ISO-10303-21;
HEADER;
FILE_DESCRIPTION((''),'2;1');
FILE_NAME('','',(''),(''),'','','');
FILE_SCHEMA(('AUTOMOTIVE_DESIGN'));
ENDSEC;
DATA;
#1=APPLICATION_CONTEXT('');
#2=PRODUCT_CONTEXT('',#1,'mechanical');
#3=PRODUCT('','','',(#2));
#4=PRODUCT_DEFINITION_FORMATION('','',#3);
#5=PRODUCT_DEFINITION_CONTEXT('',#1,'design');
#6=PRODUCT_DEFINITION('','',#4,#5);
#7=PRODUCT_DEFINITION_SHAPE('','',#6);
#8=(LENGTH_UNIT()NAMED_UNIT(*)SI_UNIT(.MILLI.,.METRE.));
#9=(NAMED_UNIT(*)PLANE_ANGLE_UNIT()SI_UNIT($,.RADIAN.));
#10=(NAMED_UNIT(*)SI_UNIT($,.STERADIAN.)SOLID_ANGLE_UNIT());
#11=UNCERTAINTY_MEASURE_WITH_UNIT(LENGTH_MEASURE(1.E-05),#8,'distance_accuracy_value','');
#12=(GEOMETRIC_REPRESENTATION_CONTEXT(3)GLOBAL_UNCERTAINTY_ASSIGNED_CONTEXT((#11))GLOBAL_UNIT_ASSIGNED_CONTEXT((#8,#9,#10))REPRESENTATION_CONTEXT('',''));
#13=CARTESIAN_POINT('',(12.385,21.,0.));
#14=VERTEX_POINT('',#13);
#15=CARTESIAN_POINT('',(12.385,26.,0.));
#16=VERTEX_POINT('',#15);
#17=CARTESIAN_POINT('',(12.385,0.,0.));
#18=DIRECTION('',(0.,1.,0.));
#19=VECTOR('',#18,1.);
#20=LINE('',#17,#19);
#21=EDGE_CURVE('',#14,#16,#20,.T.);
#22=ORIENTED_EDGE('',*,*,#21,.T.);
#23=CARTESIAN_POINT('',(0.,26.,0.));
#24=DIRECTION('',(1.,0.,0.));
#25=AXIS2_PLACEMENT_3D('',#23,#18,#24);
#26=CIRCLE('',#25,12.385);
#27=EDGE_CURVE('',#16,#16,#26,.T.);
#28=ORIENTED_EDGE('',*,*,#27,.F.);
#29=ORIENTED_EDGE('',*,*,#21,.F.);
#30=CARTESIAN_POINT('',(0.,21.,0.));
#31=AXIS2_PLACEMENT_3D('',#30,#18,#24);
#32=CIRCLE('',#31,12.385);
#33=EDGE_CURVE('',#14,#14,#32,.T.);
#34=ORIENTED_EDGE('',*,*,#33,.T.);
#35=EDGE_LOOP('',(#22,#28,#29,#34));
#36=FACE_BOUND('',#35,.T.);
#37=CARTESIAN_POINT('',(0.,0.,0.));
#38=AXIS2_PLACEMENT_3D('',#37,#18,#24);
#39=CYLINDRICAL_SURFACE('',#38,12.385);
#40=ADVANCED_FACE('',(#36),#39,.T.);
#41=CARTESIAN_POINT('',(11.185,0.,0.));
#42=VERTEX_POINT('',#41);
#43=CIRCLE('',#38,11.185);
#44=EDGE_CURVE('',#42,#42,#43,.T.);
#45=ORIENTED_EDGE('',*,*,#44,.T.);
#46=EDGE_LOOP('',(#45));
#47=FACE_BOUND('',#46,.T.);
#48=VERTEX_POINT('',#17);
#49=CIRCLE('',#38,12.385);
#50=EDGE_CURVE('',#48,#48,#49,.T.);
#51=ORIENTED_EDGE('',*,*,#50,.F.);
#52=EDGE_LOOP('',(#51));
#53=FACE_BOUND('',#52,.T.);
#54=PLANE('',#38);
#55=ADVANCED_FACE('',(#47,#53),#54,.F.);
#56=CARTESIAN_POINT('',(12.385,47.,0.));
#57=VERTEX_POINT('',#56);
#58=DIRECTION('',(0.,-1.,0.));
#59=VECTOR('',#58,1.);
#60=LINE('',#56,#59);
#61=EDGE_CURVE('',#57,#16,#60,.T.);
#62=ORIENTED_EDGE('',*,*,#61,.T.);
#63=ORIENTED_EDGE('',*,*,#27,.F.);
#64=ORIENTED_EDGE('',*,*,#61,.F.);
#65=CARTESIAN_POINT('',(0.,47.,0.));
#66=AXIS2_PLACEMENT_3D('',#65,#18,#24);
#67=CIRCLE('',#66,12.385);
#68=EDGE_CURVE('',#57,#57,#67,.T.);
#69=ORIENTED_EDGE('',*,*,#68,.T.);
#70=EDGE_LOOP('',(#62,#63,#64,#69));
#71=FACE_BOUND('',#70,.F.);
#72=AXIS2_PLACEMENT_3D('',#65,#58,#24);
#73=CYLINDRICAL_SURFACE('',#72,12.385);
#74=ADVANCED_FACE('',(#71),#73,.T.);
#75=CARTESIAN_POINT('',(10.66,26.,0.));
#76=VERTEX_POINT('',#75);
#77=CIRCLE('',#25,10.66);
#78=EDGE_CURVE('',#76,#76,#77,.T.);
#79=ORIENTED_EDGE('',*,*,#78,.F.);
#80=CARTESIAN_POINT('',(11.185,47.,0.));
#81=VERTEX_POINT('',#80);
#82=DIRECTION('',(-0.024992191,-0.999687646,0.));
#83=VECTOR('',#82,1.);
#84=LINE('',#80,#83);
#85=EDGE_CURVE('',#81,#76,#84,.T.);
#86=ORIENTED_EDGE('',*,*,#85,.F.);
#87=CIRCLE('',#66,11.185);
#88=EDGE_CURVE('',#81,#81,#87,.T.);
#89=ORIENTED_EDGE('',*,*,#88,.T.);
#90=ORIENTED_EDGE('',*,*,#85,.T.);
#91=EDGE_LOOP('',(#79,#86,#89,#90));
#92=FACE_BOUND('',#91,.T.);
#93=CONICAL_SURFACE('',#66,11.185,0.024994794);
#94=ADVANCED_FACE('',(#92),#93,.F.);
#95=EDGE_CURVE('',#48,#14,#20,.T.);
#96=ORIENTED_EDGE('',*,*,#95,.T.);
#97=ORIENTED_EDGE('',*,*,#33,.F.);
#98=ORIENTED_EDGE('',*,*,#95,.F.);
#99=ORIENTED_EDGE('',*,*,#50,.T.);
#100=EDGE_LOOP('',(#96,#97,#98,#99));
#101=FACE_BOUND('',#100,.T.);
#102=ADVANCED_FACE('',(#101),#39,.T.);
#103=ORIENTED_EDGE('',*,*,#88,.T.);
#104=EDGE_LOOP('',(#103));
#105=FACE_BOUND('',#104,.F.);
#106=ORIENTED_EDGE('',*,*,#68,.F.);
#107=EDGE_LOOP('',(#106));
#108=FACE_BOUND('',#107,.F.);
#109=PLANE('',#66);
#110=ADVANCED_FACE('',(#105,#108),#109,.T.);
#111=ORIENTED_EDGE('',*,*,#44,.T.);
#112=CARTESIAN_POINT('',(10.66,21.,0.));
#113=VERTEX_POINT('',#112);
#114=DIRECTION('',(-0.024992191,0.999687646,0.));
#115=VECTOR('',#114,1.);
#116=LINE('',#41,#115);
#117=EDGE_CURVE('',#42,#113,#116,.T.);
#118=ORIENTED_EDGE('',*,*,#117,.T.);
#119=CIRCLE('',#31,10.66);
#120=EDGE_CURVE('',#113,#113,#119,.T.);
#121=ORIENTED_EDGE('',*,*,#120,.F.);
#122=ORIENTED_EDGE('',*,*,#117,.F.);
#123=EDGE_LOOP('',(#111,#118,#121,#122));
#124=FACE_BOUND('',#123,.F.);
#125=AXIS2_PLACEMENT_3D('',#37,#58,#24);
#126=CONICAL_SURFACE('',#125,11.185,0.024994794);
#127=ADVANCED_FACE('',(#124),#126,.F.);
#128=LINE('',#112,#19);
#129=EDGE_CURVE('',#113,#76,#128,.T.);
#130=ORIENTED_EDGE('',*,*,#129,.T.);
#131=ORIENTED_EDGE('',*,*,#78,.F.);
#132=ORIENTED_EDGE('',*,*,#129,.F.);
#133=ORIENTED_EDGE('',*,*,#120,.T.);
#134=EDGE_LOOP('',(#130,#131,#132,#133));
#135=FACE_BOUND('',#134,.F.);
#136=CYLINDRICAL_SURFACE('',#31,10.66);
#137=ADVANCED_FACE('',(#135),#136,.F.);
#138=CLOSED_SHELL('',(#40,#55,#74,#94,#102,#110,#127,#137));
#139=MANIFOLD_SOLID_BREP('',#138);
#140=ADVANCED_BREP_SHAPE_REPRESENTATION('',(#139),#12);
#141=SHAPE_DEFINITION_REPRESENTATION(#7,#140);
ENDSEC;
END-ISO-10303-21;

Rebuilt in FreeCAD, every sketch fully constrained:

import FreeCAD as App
import Part
import Sketcher
from FreeCAD import Vector


def add_polygon(sketch, points):
    """Adds a closed chain of lines whose ends are joined by coincident constraints."""
    first, n = sketch.GeometryCount, len(points)
    for a, b in zip(points, points[1:] + points[:1]):
        sketch.addGeometry(Part.LineSegment(App.Vector(*a, 0), App.Vector(*b, 0)), False)
    for i in range(n):
        sketch.addConstraint(Sketcher.Constraint("Coincident", first + i, 2, first + (i + 1) % n, 1))

doc = App.newDocument("Part")
body = doc.addObject("PartDesign::Body", "Body")

# Sketch on XY plane
sketch1 = body.newObject("Sketcher::SketchObject", "Sketch")
sketch1.AttachmentSupport = (doc.getObject("XY_Plane"), [""])
sketch1.MapMode = "FlatFace"
add_polygon(sketch1, [(10.7, 21), (11.2, 0), (12.4, 0), (12.4, 47), (11.2, 47), (10.7, 26)])  # lines 0-5
sketch1.addConstraint([
    Sketcher.Constraint("Horizontal", 1),
    Sketcher.Constraint("Vertical", 2),
    Sketcher.Constraint("Horizontal", 3),
    Sketcher.Constraint("Vertical", 5),
    Sketcher.Constraint("PointOnObject", 0, 2, -1),
    Sketcher.Constraint("Vertical", 0, 2, 3, 2),
    Sketcher.Constraint("Equal", 0, 4),
    Sketcher.Constraint("DistanceY", 5, 2, 5, 1, 5.0),
    Sketcher.Constraint("DistanceX", 1, 1, 1, 2, 1.2),
    Sketcher.Constraint("DistanceY", -1, 1, 5, 2, 21.0),
    Sketcher.Constraint("DistanceX", -1, 1, 4, 2, 10.66),
    Sketcher.Constraint("DistanceX", -1, 1, 0, 2, 11.185),
])
revolution = body.newObject("PartDesign::Revolution", "Revolution")
revolution.Profile = sketch1
revolution.ReferenceAxis = (sketch1, ["V_Axis"])
revolution.Angle = 360

doc.recompute()
